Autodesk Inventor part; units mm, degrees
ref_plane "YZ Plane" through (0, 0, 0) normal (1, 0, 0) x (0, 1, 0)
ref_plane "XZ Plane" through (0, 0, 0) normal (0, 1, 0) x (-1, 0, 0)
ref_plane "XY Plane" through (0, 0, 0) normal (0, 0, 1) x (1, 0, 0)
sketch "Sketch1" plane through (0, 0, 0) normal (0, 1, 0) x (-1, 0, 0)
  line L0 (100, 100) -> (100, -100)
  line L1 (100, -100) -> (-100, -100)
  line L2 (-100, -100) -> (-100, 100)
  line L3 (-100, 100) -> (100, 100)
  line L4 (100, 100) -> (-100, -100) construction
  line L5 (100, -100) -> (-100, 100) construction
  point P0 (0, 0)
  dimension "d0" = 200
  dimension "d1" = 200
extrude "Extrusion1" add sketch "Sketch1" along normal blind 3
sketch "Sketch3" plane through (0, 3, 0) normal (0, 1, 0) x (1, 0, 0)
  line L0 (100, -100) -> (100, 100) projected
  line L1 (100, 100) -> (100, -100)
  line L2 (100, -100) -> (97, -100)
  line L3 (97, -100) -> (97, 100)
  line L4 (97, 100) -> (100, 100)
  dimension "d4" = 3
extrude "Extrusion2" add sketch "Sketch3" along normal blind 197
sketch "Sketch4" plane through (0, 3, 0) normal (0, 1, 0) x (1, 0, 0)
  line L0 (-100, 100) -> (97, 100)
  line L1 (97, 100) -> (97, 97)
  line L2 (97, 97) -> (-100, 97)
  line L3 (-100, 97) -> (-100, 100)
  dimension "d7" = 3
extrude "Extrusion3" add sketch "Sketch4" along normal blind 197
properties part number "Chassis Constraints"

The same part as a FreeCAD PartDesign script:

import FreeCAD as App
import Part
import Sketcher

V = App.Vector


def add_polygon(sketch, points):
    """Adds a closed chain of lines whose ends are joined by coincident constraints."""
    first, n = sketch.GeometryCount, len(points)
    for a, b in zip(points, points[1:] + points[:1]):
        sketch.addGeometry(Part.LineSegment(App.Vector(*a, 0), App.Vector(*b, 0)), False)
    for i in range(n):
        sketch.addConstraint(Sketcher.Constraint("Coincident", first + i, 2, first + (i + 1) % n, 1))

doc = App.newDocument("Part")
body = doc.addObject("PartDesign::Body", "Body")

# Sketch on XZ plane
sketch1 = doc.addObject("Sketcher::SketchObject", "Sketch")
body.addObject(sketch1)
sketch1.AttachmentSupport = (doc.XZ_Plane, [""])
sketch1.MapMode = "FlatFace"
add_polygon(sketch1, [(-100, -100), (-100, 100), (100, 100), (100, -100)])  # lines 0-3
sketch1.addConstraint(Sketcher.Constraint("Vertical", 0))
sketch1.addConstraint(Sketcher.Constraint("Horizontal", 1))
sketch1.addConstraint(Sketcher.Constraint("Vertical", 2))
sketch1.addConstraint(Sketcher.Constraint("Horizontal", 3))
sketch1.addConstraint(Sketcher.Constraint("Symmetric", 0, 2, 2, 2, -1, 1))
sketch1.addConstraint(Sketcher.Constraint("Equal", 3, 0))
sketch1.addConstraint(Sketcher.Constraint("DistanceX", 1, 1, 1, 2, 200.0))
pad1 = doc.addObject("PartDesign::Pad", "Pad")
body.addObject(pad1)
pad1.Profile = sketch1
pad1.Length = 3
pad1.Reversed = True

# Sketch on XZ plane
sketch2 = doc.addObject("Sketcher::SketchObject", "Sketch001")
body.addObject(sketch2)
sketch2.AttachmentSupport = (doc.XZ_Plane, [""])
sketch2.MapMode = "FlatFace"
sketch2.AttachmentOffset = App.Placement(V(0, 0, -3), App.Rotation())
add_polygon(sketch2, [(97, 100), (100, 100), (100, -100), (97, -100)])  # lines 0-3
sketch2.addConstraint(Sketcher.Constraint("Horizontal", 0))
sketch2.addConstraint(Sketcher.Constraint("Vertical", 1))
sketch2.addConstraint(Sketcher.Constraint("Horizontal", 2))
sketch2.addConstraint(Sketcher.Constraint("Vertical", 3))
sketch2.addConstraint(Sketcher.Constraint("DistanceX", 0, 1, 0, 2, 3.0))
sketch2.addConstraint(Sketcher.Constraint("DistanceY", 1, 2, 1, 1, 200.0))
sketch2.addConstraint(Sketcher.Constraint("DistanceX", -1, 1, 0, 2, 100.0))
sketch2.addConstraint(Sketcher.Constraint("DistanceY", -1, 1, 0, 2, 100.0))
pad2 = doc.addObject("PartDesign::Pad", "Pad001")
body.addObject(pad2)
pad2.Profile = sketch2
pad2.Length = 197
pad2.Reversed = True

# Sketch on XZ plane
sketch3 = doc.addObject("Sketcher::SketchObject", "Sketch002")
body.addObject(sketch3)
sketch3.AttachmentSupport = (doc.XZ_Plane, [""])
sketch3.MapMode = "FlatFace"
sketch3.AttachmentOffset = App.Placement(V(0, 0, -3), App.Rotation())
add_polygon(sketch3, [(97, -100), (-100, -100), (-100, -97), (97, -97)])  # lines 0-3
sketch3.addConstraint(Sketcher.Constraint("Horizontal", 0))
sketch3.addConstraint(Sketcher.Constraint("Vertical", 1))
sketch3.addConstraint(Sketcher.Constraint("Horizontal", 2))
sketch3.addConstraint(Sketcher.Constraint("Vertical", 3))
sketch3.addConstraint(Sketcher.Constraint("DistanceY", 1, 1, 1, 2, 3.0))
sketch3.addConstraint(Sketcher.Constraint("DistanceX", 0, 2, 0, 1, 197.0))
sketch3.addConstraint(Sketcher.Constraint("DistanceX", 0, 2, -1, 1, 100.0))
sketch3.addConstraint(Sketcher.Constraint("DistanceY", 0, 2, -1, 1, 100.0))
pad3 = doc.addObject("PartDesign::Pad", "Pad002")
body.addObject(pad3)
pad3.Profile = sketch3
pad3.Length = 197
pad3.Reversed = True

doc.recompute()
